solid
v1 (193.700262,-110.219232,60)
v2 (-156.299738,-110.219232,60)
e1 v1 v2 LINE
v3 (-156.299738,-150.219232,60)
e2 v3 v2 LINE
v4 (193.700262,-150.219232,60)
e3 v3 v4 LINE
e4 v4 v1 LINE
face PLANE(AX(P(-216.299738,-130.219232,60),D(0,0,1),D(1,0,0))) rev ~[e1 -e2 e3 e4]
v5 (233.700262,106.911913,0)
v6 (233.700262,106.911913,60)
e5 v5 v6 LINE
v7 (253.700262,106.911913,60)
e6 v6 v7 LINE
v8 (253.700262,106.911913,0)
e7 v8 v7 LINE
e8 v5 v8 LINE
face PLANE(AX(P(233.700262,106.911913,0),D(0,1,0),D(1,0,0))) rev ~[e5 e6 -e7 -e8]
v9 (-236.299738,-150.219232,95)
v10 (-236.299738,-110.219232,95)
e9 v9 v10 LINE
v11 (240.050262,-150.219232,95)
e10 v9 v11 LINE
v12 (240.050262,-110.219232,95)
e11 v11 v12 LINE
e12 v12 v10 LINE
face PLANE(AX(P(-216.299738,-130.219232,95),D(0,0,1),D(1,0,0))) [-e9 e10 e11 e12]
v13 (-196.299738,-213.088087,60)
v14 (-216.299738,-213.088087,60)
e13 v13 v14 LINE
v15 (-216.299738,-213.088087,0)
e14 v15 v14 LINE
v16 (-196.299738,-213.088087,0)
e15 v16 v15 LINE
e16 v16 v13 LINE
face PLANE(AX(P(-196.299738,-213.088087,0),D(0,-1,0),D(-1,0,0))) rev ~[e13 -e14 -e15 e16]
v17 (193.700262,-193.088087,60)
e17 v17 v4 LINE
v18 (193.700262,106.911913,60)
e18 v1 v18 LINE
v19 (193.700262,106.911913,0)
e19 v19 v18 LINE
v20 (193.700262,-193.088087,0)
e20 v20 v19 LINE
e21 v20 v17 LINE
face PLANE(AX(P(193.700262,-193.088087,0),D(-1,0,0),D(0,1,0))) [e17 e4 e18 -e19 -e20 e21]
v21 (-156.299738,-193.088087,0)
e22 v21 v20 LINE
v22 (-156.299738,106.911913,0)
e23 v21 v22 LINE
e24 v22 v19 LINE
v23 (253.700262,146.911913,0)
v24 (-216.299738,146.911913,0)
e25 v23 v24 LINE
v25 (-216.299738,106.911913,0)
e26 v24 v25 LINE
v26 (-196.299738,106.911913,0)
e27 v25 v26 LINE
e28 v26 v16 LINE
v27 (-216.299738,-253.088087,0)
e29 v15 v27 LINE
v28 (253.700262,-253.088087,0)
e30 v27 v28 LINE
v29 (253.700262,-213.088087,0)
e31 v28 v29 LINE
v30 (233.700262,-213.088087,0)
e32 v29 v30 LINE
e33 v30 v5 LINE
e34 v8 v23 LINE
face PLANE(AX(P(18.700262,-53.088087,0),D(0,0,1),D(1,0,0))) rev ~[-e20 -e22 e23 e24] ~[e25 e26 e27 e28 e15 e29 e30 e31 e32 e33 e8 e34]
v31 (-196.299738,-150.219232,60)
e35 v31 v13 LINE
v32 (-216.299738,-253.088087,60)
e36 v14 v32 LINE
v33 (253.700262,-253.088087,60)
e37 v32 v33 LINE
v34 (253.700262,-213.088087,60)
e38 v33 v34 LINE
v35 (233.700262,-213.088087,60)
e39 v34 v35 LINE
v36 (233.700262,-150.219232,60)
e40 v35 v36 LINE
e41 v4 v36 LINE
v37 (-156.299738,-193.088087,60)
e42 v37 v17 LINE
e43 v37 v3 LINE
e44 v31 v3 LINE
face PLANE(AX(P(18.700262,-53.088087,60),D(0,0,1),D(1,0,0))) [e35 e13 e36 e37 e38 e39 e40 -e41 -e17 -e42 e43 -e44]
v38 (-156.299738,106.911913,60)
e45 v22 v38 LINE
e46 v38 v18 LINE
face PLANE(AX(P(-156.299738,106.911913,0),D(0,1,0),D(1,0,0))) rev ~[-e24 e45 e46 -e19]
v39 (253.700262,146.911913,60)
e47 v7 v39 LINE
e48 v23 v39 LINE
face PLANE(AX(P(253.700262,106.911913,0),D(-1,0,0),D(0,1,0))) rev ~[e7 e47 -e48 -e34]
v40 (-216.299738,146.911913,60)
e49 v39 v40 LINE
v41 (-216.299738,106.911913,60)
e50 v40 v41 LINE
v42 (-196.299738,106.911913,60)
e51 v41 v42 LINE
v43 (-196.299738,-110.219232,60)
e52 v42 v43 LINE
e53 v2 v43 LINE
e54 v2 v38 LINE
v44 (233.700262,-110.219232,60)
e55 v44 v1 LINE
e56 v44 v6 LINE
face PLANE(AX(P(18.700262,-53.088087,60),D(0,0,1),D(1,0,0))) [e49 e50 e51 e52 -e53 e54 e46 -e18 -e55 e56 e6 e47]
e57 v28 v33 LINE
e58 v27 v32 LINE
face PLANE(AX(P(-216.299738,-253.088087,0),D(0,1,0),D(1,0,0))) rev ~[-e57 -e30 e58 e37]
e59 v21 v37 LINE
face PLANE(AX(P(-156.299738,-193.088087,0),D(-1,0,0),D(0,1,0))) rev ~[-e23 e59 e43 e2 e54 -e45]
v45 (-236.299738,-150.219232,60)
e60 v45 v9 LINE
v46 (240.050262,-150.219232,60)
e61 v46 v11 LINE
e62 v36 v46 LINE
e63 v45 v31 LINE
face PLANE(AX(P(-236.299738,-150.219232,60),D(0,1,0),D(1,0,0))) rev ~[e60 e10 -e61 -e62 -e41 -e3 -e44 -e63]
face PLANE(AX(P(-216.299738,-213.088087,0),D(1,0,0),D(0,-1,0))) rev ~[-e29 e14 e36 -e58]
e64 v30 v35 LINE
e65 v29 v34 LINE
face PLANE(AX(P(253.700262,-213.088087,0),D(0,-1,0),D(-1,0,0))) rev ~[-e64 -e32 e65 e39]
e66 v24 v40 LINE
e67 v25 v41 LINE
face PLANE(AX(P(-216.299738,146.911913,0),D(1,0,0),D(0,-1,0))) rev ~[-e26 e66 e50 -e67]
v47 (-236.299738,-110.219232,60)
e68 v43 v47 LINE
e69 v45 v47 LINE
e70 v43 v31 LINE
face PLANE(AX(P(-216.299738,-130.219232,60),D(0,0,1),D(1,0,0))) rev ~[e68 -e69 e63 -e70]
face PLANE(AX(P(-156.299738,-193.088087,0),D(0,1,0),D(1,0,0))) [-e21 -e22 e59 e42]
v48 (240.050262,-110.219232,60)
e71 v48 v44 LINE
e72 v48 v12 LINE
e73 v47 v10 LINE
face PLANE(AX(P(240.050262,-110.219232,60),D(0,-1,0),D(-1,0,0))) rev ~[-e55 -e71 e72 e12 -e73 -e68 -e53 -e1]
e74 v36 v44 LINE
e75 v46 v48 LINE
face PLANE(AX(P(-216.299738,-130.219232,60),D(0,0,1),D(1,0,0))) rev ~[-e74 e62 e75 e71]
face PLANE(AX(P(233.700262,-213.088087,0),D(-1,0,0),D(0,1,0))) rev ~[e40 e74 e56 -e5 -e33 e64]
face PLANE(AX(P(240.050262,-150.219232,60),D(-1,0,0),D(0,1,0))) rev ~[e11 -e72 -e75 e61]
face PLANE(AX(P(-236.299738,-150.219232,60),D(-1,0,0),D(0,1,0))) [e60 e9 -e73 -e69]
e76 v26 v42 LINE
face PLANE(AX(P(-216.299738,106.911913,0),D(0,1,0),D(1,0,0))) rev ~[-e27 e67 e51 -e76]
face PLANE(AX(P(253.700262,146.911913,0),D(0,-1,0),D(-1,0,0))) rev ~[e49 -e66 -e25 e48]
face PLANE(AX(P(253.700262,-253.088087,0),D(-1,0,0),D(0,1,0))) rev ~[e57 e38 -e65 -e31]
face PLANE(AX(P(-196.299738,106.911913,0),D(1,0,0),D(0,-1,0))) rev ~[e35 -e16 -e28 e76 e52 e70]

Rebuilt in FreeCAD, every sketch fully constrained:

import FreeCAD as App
import Part
import Sketcher
from FreeCAD import Vector

doc = App.newDocument("Part")
body = doc.addObject("PartDesign::Body", "Body")

# Sketch on XY plane
sketch1 = body.newObject("Sketcher::SketchObject", "Sketch")
sketch1.AttachmentSupport = (doc.getObject("XY_Plane"), [""])
sketch1.MapMode = "FlatFace"
sketch1.addGeometry(Part.LineSegment(Vector(254, 147, 0), Vector(-216, 147, 0)), False)
sketch1.addGeometry(Part.LineSegment(Vector(-216, 147, 0), Vector(-216, 107, 0)), False)
sketch1.addGeometry(Part.LineSegment(Vector(-216, 107, 0), Vector(-196, 107, 0)), False)
sketch1.addGeometry(Part.LineSegment(Vector(-196, 107, 0), Vector(-196, -213, 0)), False)
sketch1.addGeometry(Part.LineSegment(Vector(-196, -213, 0), Vector(-216, -213, 0)), False)
sketch1.addGeometry(Part.LineSegment(Vector(-216, -213, 0), Vector(-216, -253, 0)), False)
sketch1.addGeometry(Part.LineSegment(Vector(-216, -253, 0), Vector(254, -253, 0)), False)
sketch1.addGeometry(Part.LineSegment(Vector(254, -253, 0), Vector(254, -213, 0)), False)
sketch1.addGeometry(Part.LineSegment(Vector(254, -213, 0), Vector(234, -213, 0)), False)
sketch1.addGeometry(Part.LineSegment(Vector(234, -213, 0), Vector(234, 107, 0)), False)
sketch1.addGeometry(Part.LineSegment(Vector(234, 107, 0), Vector(254, 107, 0)), False)
sketch1.addGeometry(Part.LineSegment(Vector(254, 107, 0), Vector(254, 147, 0)), False)
sketch1.addGeometry(Part.LineSegment(Vector(194, -193, 0), Vector(-156, -193, 0)), False)
sketch1.addGeometry(Part.LineSegment(Vector(-156, -193, 0), Vector(-156, 107, 0)), False)
sketch1.addGeometry(Part.LineSegment(Vector(-156, 107, 0), Vector(194, 107, 0)), False)
sketch1.addGeometry(Part.LineSegment(Vector(194, 107, 0), Vector(194, -193, 0)), False)
sketch1.addConstraint(Sketcher.Constraint("Coincident", 0, 2, 1, 1))
sketch1.addConstraint(Sketcher.Constraint("Coincident", 1, 2, 2, 1))
sketch1.addConstraint(Sketcher.Constraint("Coincident", 2, 2, 3, 1))
sketch1.addConstraint(Sketcher.Constraint("Coincident", 3, 2, 4, 1))
sketch1.addConstraint(Sketcher.Constraint("Coincident", 4, 2, 5, 1))
sketch1.addConstraint(Sketcher.Constraint("Coincident", 5, 2, 6, 1))
sketch1.addConstraint(Sketcher.Constraint("Coincident", 6, 2, 7, 1))
sketch1.addConstraint(Sketcher.Constraint("Coincident", 7, 2, 8, 1))
sketch1.addConstraint(Sketcher.Constraint("Coincident", 8, 2, 9, 1))
sketch1.addConstraint(Sketcher.Constraint("Coincident", 9, 2, 10, 1))
sketch1.addConstraint(Sketcher.Constraint("Coincident", 10, 2, 11, 1))
sketch1.addConstraint(Sketcher.Constraint("Coincident", 11, 2, 0, 1))
sketch1.addConstraint(Sketcher.Constraint("Coincident", 12, 2, 13, 1))
sketch1.addConstraint(Sketcher.Constraint("Coincident", 13, 2, 14, 1))
sketch1.addConstraint(Sketcher.Constraint("Coincident", 14, 2, 15, 1))
sketch1.addConstraint(Sketcher.Constraint("Coincident", 15, 2, 12, 1))
sketch1.addConstraint(Sketcher.Constraint("Horizontal", 0))
sketch1.addConstraint(Sketcher.Constraint("Vertical", 1))
sketch1.addConstraint(Sketcher.Constraint("Horizontal", 2))
sketch1.addConstraint(Sketcher.Constraint("Vertical", 3))
sketch1.addConstraint(Sketcher.Constraint("Horizontal", 4))
sketch1.addConstraint(Sketcher.Constraint("Vertical", 5))
sketch1.addConstraint(Sketcher.Constraint("Horizontal", 6))
sketch1.addConstraint(Sketcher.Constraint("Vertical", 7))
sketch1.addConstraint(Sketcher.Constraint("Horizontal", 8))
sketch1.addConstraint(Sketcher.Constraint("Vertical", 9))
sketch1.addConstraint(Sketcher.Constraint("Horizontal", 10))
sketch1.addConstraint(Sketcher.Constraint("Vertical", 11))
sketch1.addConstraint(Sketcher.Constraint("Horizontal", 12))
sketch1.addConstraint(Sketcher.Constraint("Vertical", 13))
sketch1.addConstraint(Sketcher.Constraint("Horizontal", 14))
sketch1.addConstraint(Sketcher.Constraint("Vertical", 15))
sketch1.addConstraint(Sketcher.Constraint("Horizontal", 4, 2, 7, 2))
sketch1.addConstraint(Sketcher.Constraint("Horizontal", 2, 2, 9, 2))
sketch1.addConstraint(Sketcher.Constraint("Horizontal", 10, 2, 13, 2))
sketch1.addConstraint(Sketcher.Constraint("Vertical", 1, 2, 4, 2))
sketch1.addConstraint(Sketcher.Constraint("Vertical", 7, 2, 10, 2))
sketch1.addConstraint(Sketcher.Constraint("Equal", 4, 8))
sketch1.addConstraint(Sketcher.Constraint("Equal", 1, 5))
sketch1.addConstraint(Sketcher.Constraint("DistanceX", 0, 2, 0, 1, 470.0))
sketch1.addConstraint(Sketcher.Constraint("DistanceX", 2, 1, 2, 2, 20.0))
sketch1.addConstraint(Sketcher.Constraint("DistanceX", 12, 2, 12, 1, 350.0))
sketch1.addConstraint(Sketcher.Constraint("DistanceY", 1, 2, 1, 1, 40.0))
sketch1.addConstraint(Sketcher.Constraint("DistanceY", 3, 2, 3, 1, 320.0))
sketch1.addConstraint(Sketcher.Constraint("DistanceY", 13, 1, 13, 2, 300.0))
sketch1.addConstraint(Sketcher.Constraint("DistanceX", 3, 2, 12, 2, 40.0))
sketch1.addConstraint(Sketcher.Constraint("DistanceX", 0, 2, -1, 1, 216.299738))
sketch1.addConstraint(Sketcher.Constraint("DistanceY", -1, 1, 0, 2, 146.911913))
pad1 = body.newObject("PartDesign::Pad", "Pad")
pad1.Profile = sketch1
pad1.Length = 60

# Sketch on XY plane
sketch2 = body.newObject("Sketcher::SketchObject", "Sketch001")
sketch2.AttachmentSupport = (doc.getObject("XY_Plane"), [""])
sketch2.MapMode = "FlatFace"
sketch2.AttachmentOffset = App.Placement(Vector(0, 0, 60), App.Rotation())
sketch2.addGeometry(Part.LineSegment(Vector(-236, -110, 0), Vector(-236, -150, 0)), False)
sketch2.addGeometry(Part.LineSegment(Vector(-236, -150, 0), Vector(240, -150, 0)), False)
sketch2.addGeometry(Part.LineSegment(Vector(240, -150, 0), Vector(240, -110, 0)), False)
sketch2.addGeometry(Part.LineSegment(Vector(240, -110, 0), Vector(-236, -110, 0)), False)
sketch2.addConstraint(Sketcher.Constraint("Coincident", 0, 2, 1, 1))
sketch2.addConstraint(Sketcher.Constraint("Coincident", 1, 2, 2, 1))
sketch2.addConstraint(Sketcher.Constraint("Coincident", 2, 2, 3, 1))
sketch2.addConstraint(Sketcher.Constraint("Coincident", 3, 2, 0, 1))
sketch2.addConstraint(Sketcher.Constraint("Vertical", 0))
sketch2.addConstraint(Sketcher.Constraint("Horizontal", 1))
sketch2.addConstraint(Sketcher.Constraint("Vertical", 2))
sketch2.addConstraint(Sketcher.Constraint("Horizontal", 3))
sketch2.addConstraint(Sketcher.Constraint("DistanceY", 0, 2, 0, 1, 40.0))
sketch2.addConstraint(Sketcher.Constraint("DistanceX", 1, 1, 1, 2, 476.35))
sketch2.addConstraint(Sketcher.Constraint("DistanceX", 0, 2, -1, 1, 236.299738))
sketch2.addConstraint(Sketcher.Constraint("DistanceY", 0, 2, -1, 1, 150.219232))
pad2 = body.newObject("PartDesign::Pad", "Pad001")
pad2.Profile = sketch2
pad2.Length = 35

doc.recompute()
